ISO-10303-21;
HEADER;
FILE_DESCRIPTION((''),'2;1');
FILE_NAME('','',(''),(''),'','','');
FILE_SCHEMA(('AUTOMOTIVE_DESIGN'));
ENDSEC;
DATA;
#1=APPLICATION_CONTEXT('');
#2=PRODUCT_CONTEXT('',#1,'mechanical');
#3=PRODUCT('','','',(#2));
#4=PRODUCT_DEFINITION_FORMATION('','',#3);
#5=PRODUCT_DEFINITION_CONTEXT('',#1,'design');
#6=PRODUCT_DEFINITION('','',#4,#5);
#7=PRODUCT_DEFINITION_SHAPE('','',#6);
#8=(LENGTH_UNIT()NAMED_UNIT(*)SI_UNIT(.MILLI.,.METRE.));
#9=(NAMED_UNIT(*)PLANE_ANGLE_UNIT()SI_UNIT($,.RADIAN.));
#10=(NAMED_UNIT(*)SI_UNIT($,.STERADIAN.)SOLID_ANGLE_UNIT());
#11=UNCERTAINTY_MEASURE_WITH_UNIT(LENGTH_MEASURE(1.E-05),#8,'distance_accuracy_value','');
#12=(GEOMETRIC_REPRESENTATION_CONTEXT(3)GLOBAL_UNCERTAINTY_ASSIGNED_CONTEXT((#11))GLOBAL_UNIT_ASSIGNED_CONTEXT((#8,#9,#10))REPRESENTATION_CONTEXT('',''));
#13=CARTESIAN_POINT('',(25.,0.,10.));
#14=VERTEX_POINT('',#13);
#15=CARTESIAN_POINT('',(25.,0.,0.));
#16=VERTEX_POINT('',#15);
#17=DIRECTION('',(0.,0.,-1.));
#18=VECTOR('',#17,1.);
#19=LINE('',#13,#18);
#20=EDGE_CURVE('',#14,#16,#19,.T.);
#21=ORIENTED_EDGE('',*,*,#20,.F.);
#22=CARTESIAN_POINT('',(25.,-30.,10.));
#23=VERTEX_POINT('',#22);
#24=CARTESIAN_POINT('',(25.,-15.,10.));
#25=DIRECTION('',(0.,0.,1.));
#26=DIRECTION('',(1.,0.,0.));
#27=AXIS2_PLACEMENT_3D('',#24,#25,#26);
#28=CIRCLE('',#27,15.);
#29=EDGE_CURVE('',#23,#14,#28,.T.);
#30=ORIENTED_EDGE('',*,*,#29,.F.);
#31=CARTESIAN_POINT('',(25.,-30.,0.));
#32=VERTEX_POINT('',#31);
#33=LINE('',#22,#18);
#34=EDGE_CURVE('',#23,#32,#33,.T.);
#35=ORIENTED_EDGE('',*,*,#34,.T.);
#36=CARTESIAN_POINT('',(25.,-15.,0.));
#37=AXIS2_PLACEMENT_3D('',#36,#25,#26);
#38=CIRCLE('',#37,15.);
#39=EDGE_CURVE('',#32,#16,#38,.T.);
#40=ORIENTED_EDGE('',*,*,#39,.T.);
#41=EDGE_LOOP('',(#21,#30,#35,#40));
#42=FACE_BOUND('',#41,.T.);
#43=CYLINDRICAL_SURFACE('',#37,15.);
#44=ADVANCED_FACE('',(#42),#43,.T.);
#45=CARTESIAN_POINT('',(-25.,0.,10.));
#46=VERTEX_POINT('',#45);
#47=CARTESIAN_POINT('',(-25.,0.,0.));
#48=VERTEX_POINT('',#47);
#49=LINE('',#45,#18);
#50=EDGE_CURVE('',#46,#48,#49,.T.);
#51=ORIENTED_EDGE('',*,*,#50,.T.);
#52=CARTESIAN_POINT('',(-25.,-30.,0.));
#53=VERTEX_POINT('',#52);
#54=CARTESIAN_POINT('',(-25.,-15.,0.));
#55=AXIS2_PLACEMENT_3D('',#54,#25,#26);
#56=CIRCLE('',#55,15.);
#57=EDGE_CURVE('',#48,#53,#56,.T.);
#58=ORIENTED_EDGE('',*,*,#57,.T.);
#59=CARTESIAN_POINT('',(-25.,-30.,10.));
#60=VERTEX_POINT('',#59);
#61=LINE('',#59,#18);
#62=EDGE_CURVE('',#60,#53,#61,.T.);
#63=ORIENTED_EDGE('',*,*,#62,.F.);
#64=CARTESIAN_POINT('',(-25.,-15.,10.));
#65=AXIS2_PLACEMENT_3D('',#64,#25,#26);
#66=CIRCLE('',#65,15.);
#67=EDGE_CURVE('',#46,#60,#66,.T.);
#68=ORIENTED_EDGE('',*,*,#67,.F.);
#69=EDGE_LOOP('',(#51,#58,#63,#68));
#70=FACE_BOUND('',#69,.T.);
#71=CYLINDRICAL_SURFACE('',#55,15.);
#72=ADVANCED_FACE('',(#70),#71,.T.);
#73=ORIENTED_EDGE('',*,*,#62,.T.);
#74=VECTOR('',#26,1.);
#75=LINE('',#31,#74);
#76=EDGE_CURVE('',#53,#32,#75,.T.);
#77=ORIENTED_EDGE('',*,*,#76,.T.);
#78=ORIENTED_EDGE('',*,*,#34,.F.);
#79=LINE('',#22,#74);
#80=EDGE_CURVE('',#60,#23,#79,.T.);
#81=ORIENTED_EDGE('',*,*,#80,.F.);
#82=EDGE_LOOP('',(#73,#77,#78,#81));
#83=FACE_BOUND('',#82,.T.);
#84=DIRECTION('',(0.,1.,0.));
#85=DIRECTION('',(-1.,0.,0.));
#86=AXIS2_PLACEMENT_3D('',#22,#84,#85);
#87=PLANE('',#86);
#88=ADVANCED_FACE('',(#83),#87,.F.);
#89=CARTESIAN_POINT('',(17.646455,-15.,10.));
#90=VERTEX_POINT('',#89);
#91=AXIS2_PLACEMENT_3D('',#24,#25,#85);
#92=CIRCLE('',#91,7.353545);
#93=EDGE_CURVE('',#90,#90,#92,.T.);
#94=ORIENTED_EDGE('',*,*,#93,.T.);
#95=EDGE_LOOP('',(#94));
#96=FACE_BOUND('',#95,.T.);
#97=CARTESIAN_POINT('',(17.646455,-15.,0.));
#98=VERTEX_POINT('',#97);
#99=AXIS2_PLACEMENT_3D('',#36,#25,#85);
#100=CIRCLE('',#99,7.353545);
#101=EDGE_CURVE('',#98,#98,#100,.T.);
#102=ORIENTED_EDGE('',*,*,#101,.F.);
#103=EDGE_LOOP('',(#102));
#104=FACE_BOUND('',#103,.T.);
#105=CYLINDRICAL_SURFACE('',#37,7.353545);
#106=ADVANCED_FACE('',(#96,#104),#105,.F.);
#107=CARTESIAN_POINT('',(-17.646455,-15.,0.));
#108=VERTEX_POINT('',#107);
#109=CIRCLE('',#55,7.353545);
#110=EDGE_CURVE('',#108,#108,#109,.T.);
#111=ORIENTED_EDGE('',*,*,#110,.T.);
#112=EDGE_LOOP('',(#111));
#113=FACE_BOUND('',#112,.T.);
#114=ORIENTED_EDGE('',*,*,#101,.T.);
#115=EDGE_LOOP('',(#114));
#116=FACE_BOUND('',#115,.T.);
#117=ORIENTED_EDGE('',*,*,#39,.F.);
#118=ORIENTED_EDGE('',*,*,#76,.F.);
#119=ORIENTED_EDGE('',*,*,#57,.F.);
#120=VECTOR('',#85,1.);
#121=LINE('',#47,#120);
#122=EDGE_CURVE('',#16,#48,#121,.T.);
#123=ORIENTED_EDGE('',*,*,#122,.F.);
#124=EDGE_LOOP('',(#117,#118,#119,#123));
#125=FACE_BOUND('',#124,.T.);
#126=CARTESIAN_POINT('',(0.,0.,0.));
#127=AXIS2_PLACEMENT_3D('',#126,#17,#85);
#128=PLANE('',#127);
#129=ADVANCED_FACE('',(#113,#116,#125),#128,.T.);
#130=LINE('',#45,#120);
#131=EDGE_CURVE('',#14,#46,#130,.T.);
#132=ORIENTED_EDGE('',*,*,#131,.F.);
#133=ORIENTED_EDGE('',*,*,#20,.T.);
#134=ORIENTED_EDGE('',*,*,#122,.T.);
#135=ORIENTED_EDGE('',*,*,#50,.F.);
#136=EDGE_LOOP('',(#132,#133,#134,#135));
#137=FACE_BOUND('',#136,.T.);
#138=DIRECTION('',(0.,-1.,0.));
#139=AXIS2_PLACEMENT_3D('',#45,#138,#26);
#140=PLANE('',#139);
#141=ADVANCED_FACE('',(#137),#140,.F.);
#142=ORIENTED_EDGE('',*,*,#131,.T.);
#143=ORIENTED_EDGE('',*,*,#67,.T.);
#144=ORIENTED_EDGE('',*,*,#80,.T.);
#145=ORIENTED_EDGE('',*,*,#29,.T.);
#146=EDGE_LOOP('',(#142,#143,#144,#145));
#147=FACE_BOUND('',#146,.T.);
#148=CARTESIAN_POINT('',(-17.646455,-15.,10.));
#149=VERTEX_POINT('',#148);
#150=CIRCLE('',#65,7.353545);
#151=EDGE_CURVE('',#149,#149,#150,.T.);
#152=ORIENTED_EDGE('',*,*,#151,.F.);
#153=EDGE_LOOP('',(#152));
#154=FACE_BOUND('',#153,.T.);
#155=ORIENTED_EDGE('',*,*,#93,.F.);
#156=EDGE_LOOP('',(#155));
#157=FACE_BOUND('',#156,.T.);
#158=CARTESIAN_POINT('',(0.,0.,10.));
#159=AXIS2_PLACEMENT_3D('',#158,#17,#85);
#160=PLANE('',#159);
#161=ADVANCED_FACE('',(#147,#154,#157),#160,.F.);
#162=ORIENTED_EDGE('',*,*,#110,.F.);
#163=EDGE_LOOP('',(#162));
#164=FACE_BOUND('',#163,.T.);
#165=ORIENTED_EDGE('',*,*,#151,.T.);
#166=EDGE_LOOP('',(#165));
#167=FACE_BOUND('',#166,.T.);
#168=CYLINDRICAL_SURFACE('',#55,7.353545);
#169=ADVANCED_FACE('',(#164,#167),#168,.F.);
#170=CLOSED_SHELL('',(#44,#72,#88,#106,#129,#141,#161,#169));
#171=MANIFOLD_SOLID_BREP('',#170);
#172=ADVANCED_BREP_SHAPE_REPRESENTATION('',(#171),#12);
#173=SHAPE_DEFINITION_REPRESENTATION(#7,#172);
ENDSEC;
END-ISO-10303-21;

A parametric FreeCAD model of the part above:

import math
import FreeCAD as App
import Part
import Sketcher

V = App.Vector
Q = App.Units.Quantity


def add_polygon(sketch, points):
    """Adds a closed chain of lines whose ends are joined by coincident constraints."""
    first, n = sketch.GeometryCount, len(points)
    for a, b in zip(points, points[1:] + points[:1]):
        sketch.addGeometry(Part.LineSegment(App.Vector(*a, 0), App.Vector(*b, 0)), False)
    for i in range(n):
        sketch.addConstraint(Sketcher.Constraint("Coincident", first + i, 2, first + (i + 1) % n, 1))

doc = App.newDocument("Part")
body = doc.addObject("PartDesign::Body", "Body")

sketch1 = body.newObject("Sketcher::SketchObject", "Sketch")
sketch1.AttachmentSupport = (doc.getObject("XY_Plane"), [""])
sketch1.MapMode = "FlatFace"
add_polygon(sketch1, [(-25, 0), (-25, -30), (25, -30), (25, 0)])
sketch1.addConstraint([
    Sketcher.Constraint("Vertical", 0),
    Sketcher.Constraint("Horizontal", 1),
    Sketcher.Constraint("Vertical", 2),
    Sketcher.Constraint("Horizontal", 3),
    Sketcher.Constraint("Symmetric", 2, 2, 3, 2, -1, 1),
    Sketcher.Constraint("DistanceX", 1, 1, 1, 2, Q("50 mm")),
    Sketcher.Constraint("DistanceY", 0, 2, 0, 1, Q("30 mm")),
])
pad1 = body.newObject("PartDesign::Pad", "Pad")
pad1.Profile = sketch1
pad1.Length = 10

sketch2 = body.newObject("Sketcher::SketchObject", "Sketch001")
sketch2.AttachmentSupport = (doc.getObject("XY_Plane"), [""])
sketch2.MapMode = "FlatFace"
sketch2.AttachmentOffset = App.Placement(V(0, 0, 10), App.Rotation())
sketch2.addGeometry([
    Part.LineSegment(V(25, 0, 0), V(25, -30, 0)),
    Part.ArcOfCircle(Part.Circle(V(25, -15, 0), V(0, 0, 1), 15), math.radians(-90), math.radians(90)),
], False)
sketch2.addConstraint([
    Sketcher.Constraint("Coincident", 0, 1, 1, 2),
    Sketcher.Constraint("Coincident", 1, 1, 0, 2),
    Sketcher.Constraint("Vertical", 0),
    Sketcher.Constraint("PointOnObject", 0, 1, -1),
    Sketcher.Constraint("Vertical", 1, 3, 0, 1),
    Sketcher.Constraint("Radius", 1, Q("15 mm")),
    Sketcher.Constraint("DistanceX", -1, 1, 1, 3, Q("25 mm")),
])
pad2 = body.newObject("PartDesign::Pad", "Pad001")
pad2.Profile = sketch2
pad2.Length = 10
pad2.Reversed = True

sketch3 = body.newObject("Sketcher::SketchObject", "Sketch002")
sketch3.AttachmentSupport = (doc.getObject("XY_Plane"), [""])
sketch3.MapMode = "FlatFace"
sketch3.AttachmentOffset = App.Placement(V(0, 0, 10), App.Rotation())
sketch3.addGeometry([
    Part.LineSegment(V(-25, -30, 0), V(-25, 0, 0)),
    Part.ArcOfCircle(Part.Circle(V(-25, -15, 0), V(0, 0, 1), 15), math.radians(90), math.radians(270)),
], False)
sketch3.addConstraint([
    Sketcher.Constraint("Coincident", 0, 1, 1, 2),
    Sketcher.Constraint("Coincident", 1, 1, 0, 2),
    Sketcher.Constraint("Vertical", 0),
    Sketcher.Constraint("PointOnObject", 1, 1, -1),
    Sketcher.Constraint("Vertical", 1, 3, 0, 1),
    Sketcher.Constraint("Radius", 1, Q("15 mm")),
    Sketcher.Constraint("DistanceX", 1, 3, -1, 1, Q("25 mm")),
])
pad3 = body.newObject("PartDesign::Pad", "Pad002")
pad3.Profile = sketch3
pad3.Length = 10
pad3.Reversed = True

sketch4 = body.newObject("Sketcher::SketchObject", "Sketch003")
sketch4.AttachmentSupport = (doc.getObject("XY_Plane"), [""])
sketch4.MapMode = "FlatFace"
sketch4.AttachmentOffset = App.Placement(V(0, 0, 10), App.Rotation())
sketch4.addGeometry([
    Part.Circle(V(-25, -15, 0), V(0, 0, 1), 7.353545),
    Part.Circle(V(25, -15, 0), V(0, 0, 1), 7.353545),
], False)
sketch4.addConstraint([
    Sketcher.Constraint("Equal", 0, 1),
    Sketcher.Constraint("Symmetric", 0, 3, 1, 3, -2),
    Sketcher.Constraint("DistanceX", 0, 3, -1, 1, Q("25 mm")),
    Sketcher.Constraint("DistanceY", 0, 3, -1, 1, Q("15 mm")),
    Sketcher.Constraint("Diameter", 0, Q("14.70709 mm")),
])
pocket1 = body.newObject("PartDesign::Pocket", "Pocket")
pocket1.Profile = sketch4
pocket1.Length = 10

doc.recompute()
